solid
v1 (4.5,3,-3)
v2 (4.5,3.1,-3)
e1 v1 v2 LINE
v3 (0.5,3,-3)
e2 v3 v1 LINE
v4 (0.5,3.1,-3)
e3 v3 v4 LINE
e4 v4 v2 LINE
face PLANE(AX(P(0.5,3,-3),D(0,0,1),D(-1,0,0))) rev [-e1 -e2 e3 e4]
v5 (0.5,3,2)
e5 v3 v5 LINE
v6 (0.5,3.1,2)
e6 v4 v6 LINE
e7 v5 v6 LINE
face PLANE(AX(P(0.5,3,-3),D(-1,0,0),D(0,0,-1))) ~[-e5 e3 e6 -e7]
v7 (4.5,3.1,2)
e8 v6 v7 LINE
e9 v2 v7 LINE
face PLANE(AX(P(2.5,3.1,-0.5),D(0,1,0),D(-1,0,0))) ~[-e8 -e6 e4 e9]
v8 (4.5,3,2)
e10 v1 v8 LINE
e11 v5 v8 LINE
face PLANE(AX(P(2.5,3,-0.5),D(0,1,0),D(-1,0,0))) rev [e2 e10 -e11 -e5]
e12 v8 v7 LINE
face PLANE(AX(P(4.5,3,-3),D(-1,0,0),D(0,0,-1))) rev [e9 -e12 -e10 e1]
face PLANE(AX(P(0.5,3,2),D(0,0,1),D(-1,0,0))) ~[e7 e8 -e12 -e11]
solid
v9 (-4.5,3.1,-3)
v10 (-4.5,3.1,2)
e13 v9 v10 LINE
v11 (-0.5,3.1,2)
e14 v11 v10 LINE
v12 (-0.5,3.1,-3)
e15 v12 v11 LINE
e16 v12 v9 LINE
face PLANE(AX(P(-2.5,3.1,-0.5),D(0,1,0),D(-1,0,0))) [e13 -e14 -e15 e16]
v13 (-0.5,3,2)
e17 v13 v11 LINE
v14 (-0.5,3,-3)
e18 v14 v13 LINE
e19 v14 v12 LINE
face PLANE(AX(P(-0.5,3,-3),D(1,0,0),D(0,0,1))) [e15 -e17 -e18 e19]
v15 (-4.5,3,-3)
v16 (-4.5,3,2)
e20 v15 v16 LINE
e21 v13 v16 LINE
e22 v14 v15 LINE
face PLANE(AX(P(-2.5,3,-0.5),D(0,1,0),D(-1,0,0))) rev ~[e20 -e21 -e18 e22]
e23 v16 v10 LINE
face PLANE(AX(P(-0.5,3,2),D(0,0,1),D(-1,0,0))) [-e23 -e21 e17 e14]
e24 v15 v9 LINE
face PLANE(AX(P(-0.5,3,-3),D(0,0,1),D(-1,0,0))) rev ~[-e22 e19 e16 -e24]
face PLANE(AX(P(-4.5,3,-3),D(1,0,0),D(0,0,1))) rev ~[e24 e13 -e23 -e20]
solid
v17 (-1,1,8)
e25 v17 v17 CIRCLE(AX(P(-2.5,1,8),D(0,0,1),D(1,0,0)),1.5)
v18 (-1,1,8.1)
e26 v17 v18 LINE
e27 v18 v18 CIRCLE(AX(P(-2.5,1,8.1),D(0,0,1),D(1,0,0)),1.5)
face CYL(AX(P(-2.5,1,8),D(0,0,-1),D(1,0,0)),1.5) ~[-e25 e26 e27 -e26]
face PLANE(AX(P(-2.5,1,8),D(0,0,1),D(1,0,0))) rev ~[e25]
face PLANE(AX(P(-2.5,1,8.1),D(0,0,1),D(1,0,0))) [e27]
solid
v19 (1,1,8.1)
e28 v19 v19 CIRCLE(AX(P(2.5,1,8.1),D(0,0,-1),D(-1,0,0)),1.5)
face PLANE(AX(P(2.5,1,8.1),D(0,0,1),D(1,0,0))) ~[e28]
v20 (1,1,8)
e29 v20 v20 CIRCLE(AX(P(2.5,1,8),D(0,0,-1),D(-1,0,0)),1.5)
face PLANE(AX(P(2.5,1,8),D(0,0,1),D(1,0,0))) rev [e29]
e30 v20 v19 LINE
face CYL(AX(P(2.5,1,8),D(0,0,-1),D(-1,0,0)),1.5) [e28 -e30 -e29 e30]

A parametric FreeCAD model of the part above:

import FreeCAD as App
import Part
import Sketcher

V = App.Vector

doc = App.newDocument("Part")
params = doc.addObject("Spreadsheet::Sheet", "Params")
for row, (alias, value) in enumerate([
    ("sketch1_width", "4 mm"),
    ("sketch1_height", "5 mm"),
    ("pad1_length", "0.1 mm"),
    ("sketch2_diameter", "3 mm"),
    ("pad2_length", "0.1 mm"),
], start=1):
    params.set(f"A{row}", alias)
    params.set(f"B{row}", "=" + value)
    params.setAlias(f"B{row}", alias)

body = doc.addObject("PartDesign::Body", "Body")
body.AllowCompound = True

# Sketch on XZ plane
sketch1 = doc.addObject("Sketcher::SketchObject", "Sketch")
body.addObject(sketch1)
sketch1.AttachmentSupport = (doc.XZ_Plane, [""])
sketch1.MapMode = "FlatFace"
sketch1.AttachmentOffset = App.Placement(V(0, 0, -3), App.Rotation())
sketch1.addGeometry(Part.LineSegment(V(-0.5, 2, 0), V(-0.5, -3, 0)), False)
sketch1.addGeometry(Part.LineSegment(V(-0.5, -3, 0), V(-4.5, -3, 0)), False)
sketch1.addGeometry(Part.LineSegment(V(-4.5, -3, 0), V(-4.5, 2, 0)), False)
sketch1.addGeometry(Part.LineSegment(V(-4.5, 2, 0), V(-0.5, 2, 0)), False)
sketch1.addConstraint(Sketcher.Constraint("Coincident", 0, 2, 1, 1))
sketch1.addConstraint(Sketcher.Constraint("Coincident", 1, 2, 2, 1))
sketch1.addConstraint(Sketcher.Constraint("Coincident", 2, 2, 3, 1))
sketch1.addConstraint(Sketcher.Constraint("Coincident", 3, 2, 0, 1))
sketch1.addConstraint(Sketcher.Constraint("Vertical", 0))
sketch1.addConstraint(Sketcher.Constraint("Horizontal", 1))
sketch1.addConstraint(Sketcher.Constraint("Vertical", 2))
sketch1.addConstraint(Sketcher.Constraint("Horizontal", 3))
sketch1.addConstraint(Sketcher.Constraint("DistanceX", 1, 2, 1, 1, 4.0))
sketch1.addConstraint(Sketcher.Constraint("DistanceY", 0, 2, 0, 1, 5.0))
sketch1.addConstraint(Sketcher.Constraint("DistanceY", 0, 2, -1, 1, 3.0))
sketch1.addConstraint(Sketcher.Constraint("DistanceX", 0, 2, -1, 1, 0.5))
sketch1.setExpression("Constraints[8]", "Params.sketch1_width")
sketch1.setExpression("Constraints[9]", "Params.sketch1_height")
pad1 = doc.addObject("PartDesign::Pad", "Pad")
body.addObject(pad1)
pad1.Profile = sketch1
pad1.setExpression("Length", "Params.pad1_length")
pad1.Reversed = True
doc.recompute()

mirrored = doc.addObject("PartDesign::Mirrored", "Mirrored")
body.addObject(mirrored)
mirrored.Originals = [pad1]
mirrored.MirrorPlane = (doc.YZ_Plane, [""])
body.Tip = mirrored

# Sketch on XY plane
sketch2 = doc.addObject("Sketcher::SketchObject", "Sketch001")
body.addObject(sketch2)
sketch2.AttachmentSupport = (doc.XY_Plane, [""])
sketch2.MapMode = "FlatFace"
sketch2.AttachmentOffset = App.Placement(V(0, 0, 8), App.Rotation())
sketch2.addGeometry(Part.Circle(V(-2.5, 1, 0), V(0, 0, 1), 1.5), False)
sketch2.addConstraint(Sketcher.Constraint("Diameter", 0, 3.0))
sketch2.addConstraint(Sketcher.Constraint("DistanceY", -1, 1, 0, 3, 1.0))
sketch2.addConstraint(Sketcher.Constraint("DistanceX", 0, 3, -1, 1, 2.5))
sketch2.setExpression("Constraints[0]", "Params.sketch2_diameter")
pad2 = doc.addObject("PartDesign::Pad", "Pad001")
body.addObject(pad2)
pad2.Profile = sketch2
pad2.setExpression("Length", "Params.pad2_length")
doc.recompute()

mirrored2 = doc.addObject("PartDesign::Mirrored", "Mirrored001")
body.addObject(mirrored2)
mirrored2.Originals = [pad2]
mirrored2.MirrorPlane = (doc.YZ_Plane, [""])
body.Tip = mirrored2

doc.recompute()
